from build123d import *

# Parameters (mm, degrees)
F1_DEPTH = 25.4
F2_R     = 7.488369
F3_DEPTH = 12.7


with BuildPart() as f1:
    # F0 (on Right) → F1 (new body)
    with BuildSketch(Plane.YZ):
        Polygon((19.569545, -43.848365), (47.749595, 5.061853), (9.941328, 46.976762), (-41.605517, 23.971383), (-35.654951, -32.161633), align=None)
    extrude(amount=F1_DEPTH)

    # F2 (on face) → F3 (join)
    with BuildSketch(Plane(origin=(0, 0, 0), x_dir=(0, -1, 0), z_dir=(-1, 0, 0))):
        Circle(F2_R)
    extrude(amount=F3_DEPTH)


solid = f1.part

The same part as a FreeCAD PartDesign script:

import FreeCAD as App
import Part
import Sketcher

V = App.Vector
Q = App.Units.Quantity

doc = App.newDocument("Part")
body = doc.addObject("PartDesign::Body", "Body")

# Sketch on YZ plane
sketch1 = body.newObject("Sketcher::SketchObject", "Sketch")
sketch1.AttachmentSupport = (doc.getObject("YZ_Plane"), [""])
sketch1.MapMode = "FlatFace"
sketch1.addGeometry([
    Part.LineSegment(V(19.569545, -43.848365, 0), V(47.749595, 5.061853, 0)),  # 0
    Part.LineSegment(V(47.749595, 5.061853, 0), V(9.941328, 46.976762, 0)),  # 1
    Part.LineSegment(V(9.941328, 46.976762, 0), V(-41.605517, 23.971383, 0)),  # 2
    Part.LineSegment(V(-41.605517, 23.971383, 0), V(-35.654951, -32.161633, 0)),  # 3
    Part.LineSegment(V(-35.654951, -32.161633, 0), V(19.569545, -43.848365, 0)),  # 4
], False)
sketch1.addConstraint([
    Sketcher.Constraint("Coincident", 0, 2, 1, 1),
    Sketcher.Constraint("Coincident", 1, 2, 2, 1),
    Sketcher.Constraint("Coincident", 2, 2, 3, 1),
    Sketcher.Constraint("Coincident", 3, 2, 4, 1),
    Sketcher.Constraint("Coincident", 4, 2, 0, 1),
    Sketcher.Constraint("Equal", 0, 1),
    Sketcher.Constraint("Equal", 1, 2),
    Sketcher.Constraint("Equal", 2, 3),
    Sketcher.Constraint("Equal", 3, 4),
    Sketcher.Constraint("Distance", 0, 56.447539),
    Sketcher.Constraint("DistanceX", 3, 2, -1, 1, 35.654951),
    Sketcher.Constraint("DistanceY", 0, 2, 1, 2, 41.914909),
    Sketcher.Constraint("DistanceY", 2, 2, 1, 2, 23.005379),
    Sketcher.Constraint("DistanceX", 3, 2, 1, 2, 45.596279),
    Sketcher.Constraint("DistanceY", -1, 1, 0, 2, 5.061853),
])
pad1 = body.newObject("PartDesign::Pad", "Pad")
pad1.Profile = sketch1
pad1.Length = Q("1 in")

# Sketch on YZ plane
sketch2 = body.newObject("Sketcher::SketchObject", "Sketch001")
sketch2.AttachmentSupport = (doc.getObject("YZ_Plane"), [""])
sketch2.MapMode = "FlatFace"
sketch2.addGeometry(Part.Circle(V(0, 0, 0), V(0, 0, 1), 7.488369), False)
sketch2.addConstraint([
    Sketcher.Constraint("Coincident", 0, 3, -1, 1),
    Sketcher.Constraint("Diameter", 0, 14.976738),
])
pad2 = body.newObject("PartDesign::Pad", "Pad001")
pad2.Profile = sketch2
pad2.Length = Q("0.5 in")
pad2.Reversed = True

doc.recompute()
